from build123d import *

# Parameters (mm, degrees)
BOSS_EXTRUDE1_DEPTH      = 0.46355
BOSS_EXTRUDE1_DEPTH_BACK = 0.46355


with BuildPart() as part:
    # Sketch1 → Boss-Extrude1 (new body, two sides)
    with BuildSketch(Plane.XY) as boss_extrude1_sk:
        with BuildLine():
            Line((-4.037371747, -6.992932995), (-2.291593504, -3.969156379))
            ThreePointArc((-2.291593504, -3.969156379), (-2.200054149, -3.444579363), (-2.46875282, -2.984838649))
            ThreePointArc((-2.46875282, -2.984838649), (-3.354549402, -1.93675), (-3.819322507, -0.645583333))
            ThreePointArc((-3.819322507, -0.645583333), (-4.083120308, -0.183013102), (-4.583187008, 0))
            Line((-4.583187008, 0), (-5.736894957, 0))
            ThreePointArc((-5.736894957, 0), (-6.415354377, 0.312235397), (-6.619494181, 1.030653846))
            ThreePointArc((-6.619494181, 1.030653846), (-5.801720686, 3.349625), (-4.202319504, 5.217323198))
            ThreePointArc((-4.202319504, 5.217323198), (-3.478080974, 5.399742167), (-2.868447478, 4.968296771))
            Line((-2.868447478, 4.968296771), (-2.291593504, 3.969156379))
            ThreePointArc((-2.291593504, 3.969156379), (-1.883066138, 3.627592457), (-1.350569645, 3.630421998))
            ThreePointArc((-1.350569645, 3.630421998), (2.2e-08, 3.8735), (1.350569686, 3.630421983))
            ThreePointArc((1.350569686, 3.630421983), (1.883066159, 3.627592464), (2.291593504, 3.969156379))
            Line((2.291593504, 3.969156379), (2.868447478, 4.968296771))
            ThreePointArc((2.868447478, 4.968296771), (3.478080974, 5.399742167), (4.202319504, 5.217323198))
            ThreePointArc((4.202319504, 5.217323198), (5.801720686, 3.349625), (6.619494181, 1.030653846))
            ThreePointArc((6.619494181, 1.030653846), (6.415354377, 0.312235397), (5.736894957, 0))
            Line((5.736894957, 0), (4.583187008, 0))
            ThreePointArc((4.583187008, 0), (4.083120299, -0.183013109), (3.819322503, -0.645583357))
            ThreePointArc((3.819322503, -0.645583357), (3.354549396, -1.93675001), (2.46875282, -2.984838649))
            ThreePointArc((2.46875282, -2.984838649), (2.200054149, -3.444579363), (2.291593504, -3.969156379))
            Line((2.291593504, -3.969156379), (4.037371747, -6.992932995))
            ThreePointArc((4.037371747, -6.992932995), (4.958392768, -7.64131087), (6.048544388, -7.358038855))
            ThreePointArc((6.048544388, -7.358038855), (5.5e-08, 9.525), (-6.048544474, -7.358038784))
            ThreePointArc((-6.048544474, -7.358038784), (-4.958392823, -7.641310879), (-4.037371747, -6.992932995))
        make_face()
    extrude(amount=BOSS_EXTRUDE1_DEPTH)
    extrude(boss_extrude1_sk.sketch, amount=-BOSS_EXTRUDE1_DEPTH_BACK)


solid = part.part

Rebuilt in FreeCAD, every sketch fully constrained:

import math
import FreeCAD as App
import Part
import Sketcher

V = App.Vector
Q = App.Units.Quantity

doc = App.newDocument("Part")
body = doc.addObject("PartDesign::Body", "Body")

# Sketch on XY plane
sketch1 = doc.addObject("Sketcher::SketchObject", "Sketch")
body.addObject(sketch1)
sketch1.AttachmentSupport = (doc.XY_Plane, [""])
sketch1.MapMode = "FlatFace"
sketch1.addGeometry(Part.LineSegment(V(-4, -7, 0), V(-2.3, -4, 0)), False)
sketch1.addGeometry(Part.ArcOfCircle(Part.Circle(V(-3, -3.6, 0), V(0, 0, 1), 0.8), math.radians(-30), math.radians(50)), False)
sketch1.addGeometry(Part.ArcOfCircle(Part.Circle(V(0, 0, 0), V(0, 0, 1), 3.9), math.radians(-170), math.radians(-130)), False)
sketch1.addGeometry(Part.ArcOfCircle(Part.Circle(V(-4.6, -0.8, 0), V(0, 0, 1), 0.8), math.radians(10), math.radians(90)), False)
sketch1.addGeometry(Part.LineSegment(V(-4.6, 0, 0), V(-5.7, 0, 0)), False)
sketch1.addGeometry(Part.ArcOfCircle(Part.Circle(V(-5.7, 0.9, 0), V(0, 0, 1), 0.9), math.radians(171), math.radians(270)), False)
sketch1.addGeometry(Part.ArcOfCircle(Part.Circle(V(0, 0, 0), V(0, 0, 1), 6.7), math.radians(129), math.radians(171)), False)
sketch1.addGeometry(Part.ArcOfCircle(Part.Circle(V(-3.6, 4.5, 0), V(0, 0, 1), 0.9), math.radians(30), math.radians(129)), False)
sketch1.addGeometry(Part.LineSegment(V(-2.9, 5, 0), V(-2.3, 4, 0)), False)
sketch1.addGeometry(Part.ArcOfCircle(Part.Circle(V(-1.6, 4.4, 0), V(0, 0, 1), 0.8), math.radians(-150), math.radians(-70)), False)
sketch1.addGeometry(Part.ArcOfCircle(Part.Circle(V(0, 0, 0), V(0, 0, 1), 3.9), math.radians(70), math.radians(110)), False)
sketch1.addGeometry(Part.ArcOfCircle(Part.Circle(V(1.6, 4.4, 0), V(0, 0, 1), 0.8), math.radians(-110), math.radians(-30)), False)
sketch1.addGeometry(Part.LineSegment(V(2.3, 4, 0), V(2.9, 5, 0)), False)
sketch1.addGeometry(Part.ArcOfCircle(Part.Circle(V(3.6, 4.5, 0), V(0, 0, 1), 0.9), math.radians(51), math.radians(150)), False)
sketch1.addGeometry(Part.ArcOfCircle(Part.Circle(V(0, 0, 0), V(0, 0, 1), 6.7), math.radians(9), math.radians(51)), False)
sketch1.addGeometry(Part.ArcOfCircle(Part.Circle(V(5.7, 0.9, 0), V(0, 0, 1), 0.9), math.radians(-90), math.radians(9)), False)
sketch1.addGeometry(Part.LineSegment(V(5.7, 0, 0), V(4.6, 0, 0)), False)
sketch1.addGeometry(Part.ArcOfCircle(Part.Circle(V(4.6, -0.8, 0), V(0, 0, 1), 0.8), math.radians(90), math.radians(170)), False)
sketch1.addGeometry(Part.ArcOfCircle(Part.Circle(V(0, 0, 0), V(0, 0, 1), 3.9), math.radians(-50), math.radians(-10)), False)
sketch1.addGeometry(Part.ArcOfCircle(Part.Circle(V(3, -3.6, 0), V(0, 0, 1), 0.8), math.radians(130), math.radians(210)), False)
sketch1.addGeometry(Part.LineSegment(V(2.3, -4, 0), V(4, -7, 0)), False)
sketch1.addGeometry(Part.ArcOfCircle(Part.Circle(V(5.2, -6.3, 0), V(0, 0, 1), 1.3), math.radians(-150), math.radians(-51)), False)
sketch1.addGeometry(Part.ArcOfCircle(Part.Circle(V(0, 0, 0), V(0, 0, 1), 9.5), math.radians(-51), math.radians(231)), False)
sketch1.addGeometry(Part.ArcOfCircle(Part.Circle(V(-5.2, -6.3, 0), V(0, 0, 1), 1.3), math.radians(-129), math.radians(-30)), False)
sketch1.addConstraint(Sketcher.Constraint("Tangent", 0, 2, 1, 1))
sketch1.addConstraint(Sketcher.Constraint("Tangent", 1, 2, 2, 2))
sketch1.addConstraint(Sketcher.Constraint("Tangent", 2, 1, 3, 1))
sketch1.addConstraint(Sketcher.Constraint("Tangent", 3, 2, 4, 1))
sketch1.addConstraint(Sketcher.Constraint("Tangent", 4, 2, 5, 2))
sketch1.addConstraint(Sketcher.Constraint("Tangent", 5, 1, 6, 2))
sketch1.addConstraint(Sketcher.Constraint("Tangent", 6, 1, 7, 2))
sketch1.addConstraint(Sketcher.Constraint("Tangent", 7, 1, 8, 1))
sketch1.addConstraint(Sketcher.Constraint("Tangent", 8, 2, 9, 1))
sketch1.addConstraint(Sketcher.Constraint("Tangent", 9, 2, 10, 2))
sketch1.addConstraint(Sketcher.Constraint("Tangent", 10, 1, 11, 1))
sketch1.addConstraint(Sketcher.Constraint("Tangent", 11, 2, 12, 1))
sketch1.addConstraint(Sketcher.Constraint("Tangent", 12, 2, 13, 2))
sketch1.addConstraint(Sketcher.Constraint("Tangent", 13, 1, 14, 2))
sketch1.addConstraint(Sketcher.Constraint("Tangent", 14, 1, 15, 2))
sketch1.addConstraint(Sketcher.Constraint("Tangent", 15, 1, 16, 1))
sketch1.addConstraint(Sketcher.Constraint("Tangent", 16, 2, 17, 1))
sketch1.addConstraint(Sketcher.Constraint("Tangent", 17, 2, 18, 2))
sketch1.addConstraint(Sketcher.Constraint("Tangent", 18, 1, 19, 1))
sketch1.addConstraint(Sketcher.Constraint("Tangent", 19, 2, 20, 1))
sketch1.addConstraint(Sketcher.Constraint("Tangent", 20, 2, 21, 1))
sketch1.addConstraint(Sketcher.Constraint("Tangent", 21, 2, 22, 1))
sketch1.addConstraint(Sketcher.Constraint("Tangent", 22, 2, 23, 1))
sketch1.addConstraint(Sketcher.Constraint("Tangent", 23, 2, 0, 1))
sketch1.addConstraint(Sketcher.Constraint("Horizontal", 4))
sketch1.addConstraint(Sketcher.Constraint("Horizontal", 16))
sketch1.addConstraint(Sketcher.Constraint("Coincident", 2, 3, -1, 1))
sketch1.addConstraint(Sketcher.Constraint("Coincident", 6, 3, -1, 1))
sketch1.addConstraint(Sketcher.Constraint("Coincident", 10, 3, -1, 1))
sketch1.addConstraint(Sketcher.Constraint("Coincident", 14, 3, -1, 1))
sketch1.addConstraint(Sketcher.Constraint("Coincident", 18, 3, -1, 1))
sketch1.addConstraint(Sketcher.Constraint("Coincident", 22, 3, -1, 1))
sketch1.addConstraint(Sketcher.Constraint("Equal", 1, 3))
sketch1.addConstraint(Sketcher.Constraint("Equal", 5, 7))
sketch1.addConstraint(Sketcher.Constraint("Equal", 3, 9))
sketch1.addConstraint(Sketcher.Constraint("Equal", 2, 10))
sketch1.addConstraint(Sketcher.Constraint("Equal", 9, 11))
sketch1.addConstraint(Sketcher.Constraint("Equal", 7, 13))
sketch1.addConstraint(Sketcher.Constraint("Equal", 6, 14))
sketch1.addConstraint(Sketcher.Constraint("Equal", 13, 15))
sketch1.addConstraint(Sketcher.Constraint("Equal", 11, 17))
sketch1.addConstraint(Sketcher.Constraint("Equal", 10, 18))
sketch1.addConstraint(Sketcher.Constraint("Equal", 17, 19))
sketch1.addConstraint(Sketcher.Constraint("Equal", 21, 23))
sketch1.addConstraint(Sketcher.Constraint("Symmetric", 0, 2, 11, 2, -1, 1))
sketch1.addConstraint(Sketcher.Constraint("Symmetric", 4, 2, 15, 1, -1, 1))
sketch1.addConstraint(Sketcher.Constraint("Symmetric", 8, 2, 19, 2, -1, 1))
sketch1.addConstraint(Sketcher.Constraint("Symmetric", 8, 2, 11, 2, -2))
sketch1.addConstraint(Sketcher.Constraint("Parallel", 0, 12))
sketch1.addConstraint(Sketcher.Constraint("Angle", 0, Q("60 deg")))
sketch1.addConstraint(Sketcher.Constraint("Radius", 22, Q("0.375 in")))
sketch1.addConstraint(Sketcher.Constraint("Radius", 1, Q("0.0305 in")))
sketch1.addConstraint(Sketcher.Constraint("Radius", 2, Q("0.1525 in")))
sketch1.addConstraint(Sketcher.Constraint("Radius", 6, Q("6.69925 mm")))
sketch1.addConstraint(Sketcher.Constraint("Radius", 21, Q("1.33985 mm")))
sketch1.addConstraint(Sketcher.Constraint("Radius", 5, Q("0.893233 mm")))
pad1 = doc.addObject("PartDesign::Pad", "Pad")
body.addObject(pad1)
pad1.Profile = sketch1
pad1.Type = "TwoLengths"
pad1.Length = 0.46355
pad1.Length2 = 0.46355

doc.recompute()
